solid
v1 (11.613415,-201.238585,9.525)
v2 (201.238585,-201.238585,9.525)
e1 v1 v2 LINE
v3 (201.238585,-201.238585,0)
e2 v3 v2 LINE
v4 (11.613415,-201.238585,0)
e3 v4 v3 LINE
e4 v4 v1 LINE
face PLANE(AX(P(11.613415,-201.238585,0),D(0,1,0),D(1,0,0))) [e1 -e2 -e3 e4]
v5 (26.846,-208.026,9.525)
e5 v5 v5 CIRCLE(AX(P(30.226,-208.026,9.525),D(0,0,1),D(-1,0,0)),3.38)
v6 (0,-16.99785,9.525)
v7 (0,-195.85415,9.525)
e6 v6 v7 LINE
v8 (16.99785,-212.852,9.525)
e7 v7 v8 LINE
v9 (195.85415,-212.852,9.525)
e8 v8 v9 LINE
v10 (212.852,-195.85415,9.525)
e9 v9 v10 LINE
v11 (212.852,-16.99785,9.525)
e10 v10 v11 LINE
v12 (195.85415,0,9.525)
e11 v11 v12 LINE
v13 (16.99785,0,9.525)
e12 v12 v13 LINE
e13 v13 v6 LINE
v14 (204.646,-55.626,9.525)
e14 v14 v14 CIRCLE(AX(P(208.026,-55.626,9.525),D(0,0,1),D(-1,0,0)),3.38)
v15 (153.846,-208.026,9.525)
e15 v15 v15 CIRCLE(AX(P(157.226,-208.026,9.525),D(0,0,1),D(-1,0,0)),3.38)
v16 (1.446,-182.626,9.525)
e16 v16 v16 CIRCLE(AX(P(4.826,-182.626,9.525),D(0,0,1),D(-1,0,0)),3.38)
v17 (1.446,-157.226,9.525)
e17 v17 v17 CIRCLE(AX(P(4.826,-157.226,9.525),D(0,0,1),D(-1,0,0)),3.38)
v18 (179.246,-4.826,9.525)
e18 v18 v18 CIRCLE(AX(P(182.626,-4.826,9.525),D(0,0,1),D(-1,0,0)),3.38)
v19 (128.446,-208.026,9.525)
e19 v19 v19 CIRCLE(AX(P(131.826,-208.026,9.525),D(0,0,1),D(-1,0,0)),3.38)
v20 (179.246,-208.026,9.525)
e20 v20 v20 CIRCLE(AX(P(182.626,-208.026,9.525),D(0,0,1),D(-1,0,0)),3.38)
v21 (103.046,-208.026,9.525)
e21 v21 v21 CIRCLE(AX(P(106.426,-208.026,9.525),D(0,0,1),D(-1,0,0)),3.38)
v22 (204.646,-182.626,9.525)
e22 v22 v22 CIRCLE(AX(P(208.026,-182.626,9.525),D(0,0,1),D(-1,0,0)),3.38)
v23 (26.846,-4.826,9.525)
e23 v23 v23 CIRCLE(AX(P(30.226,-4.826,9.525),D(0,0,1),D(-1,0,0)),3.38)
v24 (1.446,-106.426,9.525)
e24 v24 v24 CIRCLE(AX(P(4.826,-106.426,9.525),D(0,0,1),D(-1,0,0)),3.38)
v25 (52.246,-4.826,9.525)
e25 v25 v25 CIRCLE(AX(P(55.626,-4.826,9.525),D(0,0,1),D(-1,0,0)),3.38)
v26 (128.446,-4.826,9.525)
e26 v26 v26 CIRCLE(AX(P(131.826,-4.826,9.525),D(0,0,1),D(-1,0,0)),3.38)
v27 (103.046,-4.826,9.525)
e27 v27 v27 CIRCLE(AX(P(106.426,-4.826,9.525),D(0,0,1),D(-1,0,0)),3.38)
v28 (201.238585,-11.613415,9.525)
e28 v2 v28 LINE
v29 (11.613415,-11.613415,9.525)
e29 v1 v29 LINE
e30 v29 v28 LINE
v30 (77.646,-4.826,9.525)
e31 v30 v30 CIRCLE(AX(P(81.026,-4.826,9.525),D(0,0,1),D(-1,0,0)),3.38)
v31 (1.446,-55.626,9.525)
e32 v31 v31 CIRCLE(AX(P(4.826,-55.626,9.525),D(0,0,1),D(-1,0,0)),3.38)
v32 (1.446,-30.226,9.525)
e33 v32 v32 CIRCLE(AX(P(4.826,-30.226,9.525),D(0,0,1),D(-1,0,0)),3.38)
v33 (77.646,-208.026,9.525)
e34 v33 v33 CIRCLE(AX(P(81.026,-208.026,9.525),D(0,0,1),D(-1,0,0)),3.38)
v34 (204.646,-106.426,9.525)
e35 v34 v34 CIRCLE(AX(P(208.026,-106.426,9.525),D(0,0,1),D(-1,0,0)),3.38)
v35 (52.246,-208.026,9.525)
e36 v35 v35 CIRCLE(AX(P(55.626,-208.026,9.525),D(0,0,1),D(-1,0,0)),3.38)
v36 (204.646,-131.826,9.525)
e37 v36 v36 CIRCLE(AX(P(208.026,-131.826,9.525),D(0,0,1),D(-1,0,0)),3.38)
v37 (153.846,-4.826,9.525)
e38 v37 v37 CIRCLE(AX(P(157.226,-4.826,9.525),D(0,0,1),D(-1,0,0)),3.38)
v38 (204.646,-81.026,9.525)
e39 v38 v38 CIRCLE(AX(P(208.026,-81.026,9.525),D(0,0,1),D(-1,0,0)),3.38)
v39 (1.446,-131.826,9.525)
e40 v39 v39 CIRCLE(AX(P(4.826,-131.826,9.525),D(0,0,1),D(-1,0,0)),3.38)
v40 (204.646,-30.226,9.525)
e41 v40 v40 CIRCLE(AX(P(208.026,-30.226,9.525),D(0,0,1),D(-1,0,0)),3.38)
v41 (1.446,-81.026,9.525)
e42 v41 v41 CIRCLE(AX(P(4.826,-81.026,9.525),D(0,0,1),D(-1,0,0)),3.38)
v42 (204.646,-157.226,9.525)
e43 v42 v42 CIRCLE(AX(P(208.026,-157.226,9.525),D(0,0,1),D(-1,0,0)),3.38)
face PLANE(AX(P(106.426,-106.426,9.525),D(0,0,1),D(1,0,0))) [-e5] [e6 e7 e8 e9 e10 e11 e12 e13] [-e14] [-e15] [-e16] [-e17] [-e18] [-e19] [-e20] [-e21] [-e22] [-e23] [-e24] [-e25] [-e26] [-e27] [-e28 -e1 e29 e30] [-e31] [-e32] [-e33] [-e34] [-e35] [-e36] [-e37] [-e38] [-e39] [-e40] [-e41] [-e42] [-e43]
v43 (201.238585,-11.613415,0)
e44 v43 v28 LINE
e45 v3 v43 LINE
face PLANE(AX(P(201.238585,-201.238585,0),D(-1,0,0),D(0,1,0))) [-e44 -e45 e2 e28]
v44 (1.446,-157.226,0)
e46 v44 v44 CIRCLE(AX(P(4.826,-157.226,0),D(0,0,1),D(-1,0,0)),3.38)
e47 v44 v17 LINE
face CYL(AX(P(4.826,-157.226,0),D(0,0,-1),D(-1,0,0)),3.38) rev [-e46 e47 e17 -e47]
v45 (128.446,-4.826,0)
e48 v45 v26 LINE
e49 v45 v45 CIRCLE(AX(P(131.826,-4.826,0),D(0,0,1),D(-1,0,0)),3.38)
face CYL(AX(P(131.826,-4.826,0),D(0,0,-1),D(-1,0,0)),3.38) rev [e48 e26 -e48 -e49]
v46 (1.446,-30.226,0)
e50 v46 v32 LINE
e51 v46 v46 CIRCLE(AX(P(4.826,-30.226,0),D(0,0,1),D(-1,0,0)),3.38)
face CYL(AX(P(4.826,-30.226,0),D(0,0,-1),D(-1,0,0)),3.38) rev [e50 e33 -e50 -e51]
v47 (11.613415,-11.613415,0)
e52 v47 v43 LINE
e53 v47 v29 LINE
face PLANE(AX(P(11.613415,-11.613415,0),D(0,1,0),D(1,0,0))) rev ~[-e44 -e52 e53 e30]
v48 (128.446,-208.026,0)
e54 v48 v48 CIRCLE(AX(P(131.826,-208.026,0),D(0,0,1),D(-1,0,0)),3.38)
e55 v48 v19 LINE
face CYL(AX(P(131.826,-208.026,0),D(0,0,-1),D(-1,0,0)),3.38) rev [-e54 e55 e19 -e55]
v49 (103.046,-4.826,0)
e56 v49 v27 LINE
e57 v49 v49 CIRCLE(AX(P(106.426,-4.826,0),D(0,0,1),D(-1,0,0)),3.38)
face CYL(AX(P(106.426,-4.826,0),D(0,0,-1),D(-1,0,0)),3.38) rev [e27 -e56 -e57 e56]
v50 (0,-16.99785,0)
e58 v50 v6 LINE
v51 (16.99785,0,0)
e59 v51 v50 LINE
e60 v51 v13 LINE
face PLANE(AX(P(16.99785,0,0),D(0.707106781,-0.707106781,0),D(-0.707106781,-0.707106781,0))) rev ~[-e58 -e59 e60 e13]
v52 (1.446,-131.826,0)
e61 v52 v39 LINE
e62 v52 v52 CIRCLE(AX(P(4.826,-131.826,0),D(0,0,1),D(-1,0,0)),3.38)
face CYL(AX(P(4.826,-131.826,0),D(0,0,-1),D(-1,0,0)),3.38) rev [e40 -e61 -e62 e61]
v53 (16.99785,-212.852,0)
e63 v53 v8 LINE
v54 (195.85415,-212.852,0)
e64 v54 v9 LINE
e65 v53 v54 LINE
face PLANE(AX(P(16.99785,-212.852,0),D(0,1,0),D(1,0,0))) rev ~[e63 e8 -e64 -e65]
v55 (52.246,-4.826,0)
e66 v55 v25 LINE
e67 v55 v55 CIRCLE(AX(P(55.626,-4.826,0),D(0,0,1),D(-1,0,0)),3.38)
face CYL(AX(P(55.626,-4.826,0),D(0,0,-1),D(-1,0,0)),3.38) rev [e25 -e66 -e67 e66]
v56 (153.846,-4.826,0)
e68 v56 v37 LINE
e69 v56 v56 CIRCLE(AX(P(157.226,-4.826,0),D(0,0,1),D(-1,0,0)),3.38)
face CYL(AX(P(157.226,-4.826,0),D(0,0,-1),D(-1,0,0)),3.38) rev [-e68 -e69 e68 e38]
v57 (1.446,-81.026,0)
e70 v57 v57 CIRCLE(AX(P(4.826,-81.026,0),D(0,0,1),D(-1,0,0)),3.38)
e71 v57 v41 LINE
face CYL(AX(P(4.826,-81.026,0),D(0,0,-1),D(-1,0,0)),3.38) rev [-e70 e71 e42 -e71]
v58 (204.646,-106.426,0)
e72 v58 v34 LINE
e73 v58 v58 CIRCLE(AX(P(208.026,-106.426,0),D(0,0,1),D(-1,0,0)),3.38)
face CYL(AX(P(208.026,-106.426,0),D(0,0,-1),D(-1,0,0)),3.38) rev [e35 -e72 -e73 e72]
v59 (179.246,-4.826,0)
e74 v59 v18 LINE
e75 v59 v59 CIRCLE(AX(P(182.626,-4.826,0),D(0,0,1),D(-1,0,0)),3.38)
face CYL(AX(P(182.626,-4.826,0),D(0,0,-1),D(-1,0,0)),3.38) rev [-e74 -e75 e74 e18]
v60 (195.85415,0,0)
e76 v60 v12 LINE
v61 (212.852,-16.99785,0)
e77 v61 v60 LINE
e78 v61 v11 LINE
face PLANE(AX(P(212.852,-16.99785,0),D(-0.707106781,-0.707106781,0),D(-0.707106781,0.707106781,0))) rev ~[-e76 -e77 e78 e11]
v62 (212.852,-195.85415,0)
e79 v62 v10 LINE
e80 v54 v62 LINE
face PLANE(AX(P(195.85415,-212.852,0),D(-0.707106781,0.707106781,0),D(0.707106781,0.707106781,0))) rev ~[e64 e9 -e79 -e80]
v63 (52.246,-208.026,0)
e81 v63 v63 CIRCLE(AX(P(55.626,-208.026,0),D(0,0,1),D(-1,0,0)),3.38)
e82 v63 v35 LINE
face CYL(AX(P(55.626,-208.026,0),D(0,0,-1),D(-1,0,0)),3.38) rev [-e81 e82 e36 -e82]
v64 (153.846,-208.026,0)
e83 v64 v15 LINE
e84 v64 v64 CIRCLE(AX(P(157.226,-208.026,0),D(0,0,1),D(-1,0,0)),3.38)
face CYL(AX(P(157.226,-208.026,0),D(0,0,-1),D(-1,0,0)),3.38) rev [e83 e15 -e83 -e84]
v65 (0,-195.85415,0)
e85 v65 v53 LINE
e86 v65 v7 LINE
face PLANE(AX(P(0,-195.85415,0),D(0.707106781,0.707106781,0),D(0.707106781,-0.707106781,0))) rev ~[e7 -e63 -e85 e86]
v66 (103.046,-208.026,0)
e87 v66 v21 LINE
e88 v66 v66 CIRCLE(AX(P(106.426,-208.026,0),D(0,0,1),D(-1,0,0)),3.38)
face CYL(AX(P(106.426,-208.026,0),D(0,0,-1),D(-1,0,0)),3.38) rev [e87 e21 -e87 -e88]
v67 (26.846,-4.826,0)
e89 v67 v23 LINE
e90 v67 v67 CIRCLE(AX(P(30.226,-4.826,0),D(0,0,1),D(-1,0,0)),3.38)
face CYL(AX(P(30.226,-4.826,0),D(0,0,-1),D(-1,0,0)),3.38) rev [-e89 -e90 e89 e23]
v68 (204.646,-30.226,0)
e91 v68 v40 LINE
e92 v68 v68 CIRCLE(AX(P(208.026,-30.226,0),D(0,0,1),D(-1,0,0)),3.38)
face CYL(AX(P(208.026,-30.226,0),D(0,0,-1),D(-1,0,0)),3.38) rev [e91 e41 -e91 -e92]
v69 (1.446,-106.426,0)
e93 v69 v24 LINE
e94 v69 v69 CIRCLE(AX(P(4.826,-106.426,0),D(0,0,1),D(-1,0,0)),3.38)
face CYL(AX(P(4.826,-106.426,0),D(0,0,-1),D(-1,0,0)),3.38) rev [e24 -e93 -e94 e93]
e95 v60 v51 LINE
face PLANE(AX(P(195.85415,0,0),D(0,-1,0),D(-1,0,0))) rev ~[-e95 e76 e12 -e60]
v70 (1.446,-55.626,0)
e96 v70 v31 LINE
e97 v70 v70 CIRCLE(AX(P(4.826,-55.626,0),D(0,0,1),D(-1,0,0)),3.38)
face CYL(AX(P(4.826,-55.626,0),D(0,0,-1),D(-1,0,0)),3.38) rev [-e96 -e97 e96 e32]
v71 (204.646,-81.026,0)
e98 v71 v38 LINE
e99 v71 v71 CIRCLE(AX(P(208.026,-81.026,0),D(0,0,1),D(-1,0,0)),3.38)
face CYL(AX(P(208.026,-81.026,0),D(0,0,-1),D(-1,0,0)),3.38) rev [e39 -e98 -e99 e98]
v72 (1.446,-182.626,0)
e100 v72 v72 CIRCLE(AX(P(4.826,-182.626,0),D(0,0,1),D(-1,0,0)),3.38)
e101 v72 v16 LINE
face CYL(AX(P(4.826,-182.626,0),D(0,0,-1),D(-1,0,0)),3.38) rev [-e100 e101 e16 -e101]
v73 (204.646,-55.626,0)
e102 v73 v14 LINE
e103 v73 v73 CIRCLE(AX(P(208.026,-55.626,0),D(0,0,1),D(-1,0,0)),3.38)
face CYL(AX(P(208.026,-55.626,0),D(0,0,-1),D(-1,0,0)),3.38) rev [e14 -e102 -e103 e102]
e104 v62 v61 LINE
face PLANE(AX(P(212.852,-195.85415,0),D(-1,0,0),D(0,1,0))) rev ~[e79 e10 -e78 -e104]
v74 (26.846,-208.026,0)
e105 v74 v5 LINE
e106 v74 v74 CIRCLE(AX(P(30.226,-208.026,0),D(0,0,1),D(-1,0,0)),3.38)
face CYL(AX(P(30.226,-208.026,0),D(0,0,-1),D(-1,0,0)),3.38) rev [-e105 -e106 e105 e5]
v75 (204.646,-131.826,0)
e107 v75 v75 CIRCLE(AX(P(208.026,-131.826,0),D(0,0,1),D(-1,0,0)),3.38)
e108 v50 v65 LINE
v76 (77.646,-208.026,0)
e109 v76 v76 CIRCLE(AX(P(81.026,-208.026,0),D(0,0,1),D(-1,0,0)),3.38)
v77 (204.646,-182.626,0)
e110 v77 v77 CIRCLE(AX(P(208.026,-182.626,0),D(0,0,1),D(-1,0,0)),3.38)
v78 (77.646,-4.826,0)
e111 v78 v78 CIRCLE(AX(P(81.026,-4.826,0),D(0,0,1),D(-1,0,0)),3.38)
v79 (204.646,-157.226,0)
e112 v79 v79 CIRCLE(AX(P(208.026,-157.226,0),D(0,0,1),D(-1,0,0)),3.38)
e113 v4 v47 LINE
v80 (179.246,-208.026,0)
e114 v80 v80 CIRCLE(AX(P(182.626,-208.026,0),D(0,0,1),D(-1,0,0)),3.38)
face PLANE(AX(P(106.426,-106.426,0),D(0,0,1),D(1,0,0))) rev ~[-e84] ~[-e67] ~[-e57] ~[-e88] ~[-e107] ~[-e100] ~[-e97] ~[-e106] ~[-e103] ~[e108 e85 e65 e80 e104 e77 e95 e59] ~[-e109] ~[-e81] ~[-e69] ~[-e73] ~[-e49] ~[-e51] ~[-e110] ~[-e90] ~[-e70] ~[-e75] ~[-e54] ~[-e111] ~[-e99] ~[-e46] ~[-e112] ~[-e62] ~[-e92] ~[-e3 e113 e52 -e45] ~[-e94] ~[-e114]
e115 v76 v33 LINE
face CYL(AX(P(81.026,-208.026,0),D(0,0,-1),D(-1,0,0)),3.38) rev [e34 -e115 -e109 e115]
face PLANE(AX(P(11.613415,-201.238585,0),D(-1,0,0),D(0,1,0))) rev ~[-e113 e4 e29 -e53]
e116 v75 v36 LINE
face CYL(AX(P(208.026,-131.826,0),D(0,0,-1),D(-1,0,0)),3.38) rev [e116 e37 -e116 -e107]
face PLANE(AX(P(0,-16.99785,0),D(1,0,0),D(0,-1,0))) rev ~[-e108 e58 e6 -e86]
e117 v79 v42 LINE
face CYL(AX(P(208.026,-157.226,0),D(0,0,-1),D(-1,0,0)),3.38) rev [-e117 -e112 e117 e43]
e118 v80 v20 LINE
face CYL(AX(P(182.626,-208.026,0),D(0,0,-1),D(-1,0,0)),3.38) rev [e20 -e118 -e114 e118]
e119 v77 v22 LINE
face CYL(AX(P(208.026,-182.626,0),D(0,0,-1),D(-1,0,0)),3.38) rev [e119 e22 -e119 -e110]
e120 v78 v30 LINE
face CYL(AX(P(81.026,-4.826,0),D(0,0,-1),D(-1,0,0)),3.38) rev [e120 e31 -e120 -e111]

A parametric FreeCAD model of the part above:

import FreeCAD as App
import Part
import Sketcher
Q = App.Units.Quantity


def add_polygon(sketch, points):
    """Adds a closed chain of lines whose ends are joined by coincident constraints."""
    first, n = sketch.GeometryCount, len(points)
    for a, b in zip(points, points[1:] + points[:1]):
        sketch.addGeometry(Part.LineSegment(App.Vector(*a, 0), App.Vector(*b, 0)), False)
    for i in range(n):
        sketch.addConstraint(Sketcher.Constraint("Coincident", first + i, 2, first + (i + 1) % n, 1))

doc = App.newDocument("Part")
body = doc.addObject("PartDesign::Body", "Body")

sketch1 = body.newObject("Sketcher::SketchObject", "Sketch")
sketch1.AttachmentSupport = (doc.getObject("XY_Plane"), [""])
sketch1.MapMode = "FlatFace"
add_polygon(sketch1, [(17, 0), (0, -17), (0, -195.9), (17, -212.9), (195.9, -212.9), (212.9, -195.9), (212.9, -17), (195.9, 0)])
sketch1.addGeometry(Part.Circle(App.Vector(30.2, -208, 0), App.Vector(0, 0, 1), 3.4), False)
sketch1.addGeometry(Part.Circle(App.Vector(4.8, -182.6, 0), App.Vector(0, 0, 1), 3.4), False)
sketch1.addGeometry(Part.Circle(App.Vector(55.6, -208, 0), App.Vector(0, 0, 1), 3.4), False)
sketch1.addGeometry(Part.Circle(App.Vector(81, -208, 0), App.Vector(0, 0, 1), 3.4), False)
sketch1.addGeometry(Part.Circle(App.Vector(106.4, -208, 0), App.Vector(0, 0, 1), 3.4), False)
sketch1.addGeometry(Part.Circle(App.Vector(4.8, -157.2, 0), App.Vector(0, 0, 1), 3.4), False)
sketch1.addGeometry(Part.Circle(App.Vector(4.8, -131.8, 0), App.Vector(0, 0, 1), 3.4), False)
sketch1.addGeometry(Part.Circle(App.Vector(131.8, -208, 0), App.Vector(0, 0, 1), 3.4), False)
sketch1.addGeometry(Part.Circle(App.Vector(157.2, -208, 0), App.Vector(0, 0, 1), 3.4), False)
sketch1.addGeometry(Part.Circle(App.Vector(182.6, -208, 0), App.Vector(0, 0, 1), 3.4), False)
sketch1.addGeometry(Part.Circle(App.Vector(208, -182.6, 0), App.Vector(0, 0, 1), 3.4), False)
sketch1.addGeometry(Part.Circle(App.Vector(208, -157.2, 0), App.Vector(0, 0, 1), 3.4), False)
sketch1.addGeometry(Part.Circle(App.Vector(208, -131.8, 0), App.Vector(0, 0, 1), 3.4), False)
sketch1.addGeometry(Part.Circle(App.Vector(4.8, -106.4, 0), App.Vector(0, 0, 1), 3.4), False)
sketch1.addGeometry(Part.Circle(App.Vector(4.8, -81, 0), App.Vector(0, 0, 1), 3.4), False)
sketch1.addGeometry(Part.Circle(App.Vector(4.8, -55.6, 0), App.Vector(0, 0, 1), 3.4), False)
add_polygon(sketch1, [(201.2, -201.2), (11.6, -201.2), (11.6, -11.6), (201.2, -11.6)])
sketch1.addGeometry(Part.Circle(App.Vector(4.8, -30.2, 0), App.Vector(0, 0, 1), 3.4), False)
sketch1.addGeometry(Part.Circle(App.Vector(30.2, -4.8, 0), App.Vector(0, 0, 1), 3.4), False)
sketch1.addGeometry(Part.Circle(App.Vector(55.6, -4.8, 0), App.Vector(0, 0, 1), 3.4), False)
sketch1.addGeometry(Part.Circle(App.Vector(81, -4.8, 0), App.Vector(0, 0, 1), 3.4), False)
sketch1.addGeometry(Part.Circle(App.Vector(106.4, -4.8, 0), App.Vector(0, 0, 1), 3.4), False)
sketch1.addGeometry(Part.Circle(App.Vector(208, -106.4, 0), App.Vector(0, 0, 1), 3.4), False)
sketch1.addGeometry(Part.Circle(App.Vector(208, -81, 0), App.Vector(0, 0, 1), 3.4), False)
sketch1.addGeometry(Part.Circle(App.Vector(208, -55.6, 0), App.Vector(0, 0, 1), 3.4), False)
sketch1.addGeometry(Part.Circle(App.Vector(131.8, -4.8, 0), App.Vector(0, 0, 1), 3.4), False)
sketch1.addGeometry(Part.Circle(App.Vector(157.2, -4.8, 0), App.Vector(0, 0, 1), 3.4), False)
sketch1.addGeometry(Part.Circle(App.Vector(208, -30.2, 0), App.Vector(0, 0, 1), 3.4), False)
sketch1.addGeometry(Part.Circle(App.Vector(182.6, -4.8, 0), App.Vector(0, 0, 1), 3.4), False)
sketch1.addConstraint(Sketcher.Constraint("Vertical", 1))
sketch1.addConstraint(Sketcher.Constraint("Horizontal", 3))
sketch1.addConstraint(Sketcher.Constraint("Vertical", 5))
sketch1.addConstraint(Sketcher.Constraint("Horizontal", 7))
sketch1.addConstraint(Sketcher.Constraint("Horizontal", 24))
sketch1.addConstraint(Sketcher.Constraint("Vertical", 25))
sketch1.addConstraint(Sketcher.Constraint("Horizontal", 26))
sketch1.addConstraint(Sketcher.Constraint("Vertical", 27))
sketch1.addConstraint(Sketcher.Constraint("Equal", 8, 9))
sketch1.addConstraint(Sketcher.Constraint("Equal", 9, 10))
sketch1.addConstraint(Sketcher.Constraint("Equal", 10, 11))
sketch1.addConstraint(Sketcher.Constraint("Equal", 11, 12))
sketch1.addConstraint(Sketcher.Constraint("Equal", 12, 13))
sketch1.addConstraint(Sketcher.Constraint("Equal", 13, 14))
sketch1.addConstraint(Sketcher.Constraint("Equal", 14, 15))
sketch1.addConstraint(Sketcher.Constraint("Equal", 15, 16))
sketch1.addConstraint(Sketcher.Constraint("Equal", 16, 17))
sketch1.addConstraint(Sketcher.Constraint("Equal", 17, 18))
sketch1.addConstraint(Sketcher.Constraint("Equal", 18, 19))
sketch1.addConstraint(Sketcher.Constraint("Equal", 19, 20))
sketch1.addConstraint(Sketcher.Constraint("Equal", 20, 21))
sketch1.addConstraint(Sketcher.Constraint("Equal", 21, 22))
sketch1.addConstraint(Sketcher.Constraint("Equal", 22, 23))
sketch1.addConstraint(Sketcher.Constraint("Equal", 23, 28))
sketch1.addConstraint(Sketcher.Constraint("Equal", 28, 29))
sketch1.addConstraint(Sketcher.Constraint("Equal", 29, 30))
sketch1.addConstraint(Sketcher.Constraint("Equal", 30, 31))
sketch1.addConstraint(Sketcher.Constraint("Equal", 31, 32))
sketch1.addConstraint(Sketcher.Constraint("Equal", 32, 33))
sketch1.addConstraint(Sketcher.Constraint("Equal", 33, 34))
sketch1.addConstraint(Sketcher.Constraint("Equal", 34, 35))
sketch1.addConstraint(Sketcher.Constraint("Equal", 35, 36))
sketch1.addConstraint(Sketcher.Constraint("Equal", 36, 37))
sketch1.addConstraint(Sketcher.Constraint("Equal", 37, 38))
sketch1.addConstraint(Sketcher.Constraint("Equal", 38, 39))
sketch1.addConstraint(Sketcher.Constraint("PointOnObject", 0, 2, -2))
sketch1.addConstraint(Sketcher.Constraint("PointOnObject", 6, 2, -1))
sketch1.addConstraint(Sketcher.Constraint("Perpendicular", 0, 2))
sketch1.addConstraint(Sketcher.Constraint("Perpendicular", 2, 4))
sketch1.addConstraint(Sketcher.Constraint("Perpendicular", 4, 6))
sketch1.addConstraint(Sketcher.Constraint("Horizontal", 8, 3, 10, 3))
sketch1.addConstraint(Sketcher.Constraint("Horizontal", 10, 3, 11, 3))
sketch1.addConstraint(Sketcher.Constraint("Horizontal", 11, 3, 12, 3))
sketch1.addConstraint(Sketcher.Constraint("Horizontal", 12, 3, 15, 3))
sketch1.addConstraint(Sketcher.Constraint("Horizontal", 15, 3, 16, 3))
sketch1.addConstraint(Sketcher.Constraint("Horizontal", 16, 3, 17, 3))
sketch1.addConstraint(Sketcher.Constraint("Horizontal", 9, 3, 18, 3))
sketch1.addConstraint(Sketcher.Constraint("Horizontal", 13, 3, 19, 3))
sketch1.addConstraint(Sketcher.Constraint("Horizontal", 14, 3, 20, 3))
sketch1.addConstraint(Sketcher.Constraint("Horizontal", 29, 3, 30, 3))
sketch1.addConstraint(Sketcher.Constraint("Horizontal", 30, 3, 31, 3))
sketch1.addConstraint(Sketcher.Constraint("Horizontal", 31, 3, 32, 3))
sketch1.addConstraint(Sketcher.Constraint("Horizontal", 21, 3, 33, 3))
sketch1.addConstraint(Sketcher.Constraint("Horizontal", 22, 3, 34, 3))
sketch1.addConstraint(Sketcher.Constraint("Horizontal", 23, 3, 35, 3))
sketch1.addConstraint(Sketcher.Constraint("Horizontal", 32, 3, 36, 3))
sketch1.addConstraint(Sketcher.Constraint("Horizontal", 36, 3, 37, 3))
sketch1.addConstraint(Sketcher.Constraint("Horizontal", 28, 3, 38, 3))
sketch1.addConstraint(Sketcher.Constraint("Horizontal", 37, 3, 39, 3))
sketch1.addConstraint(Sketcher.Constraint("Horizontal", 1, 2, 4, 2))
sketch1.addConstraint(Sketcher.Constraint("Horizontal", 0, 2, 5, 2))
sketch1.addConstraint(Sketcher.Constraint("Vertical", 9, 3, 13, 3))
sketch1.addConstraint(Sketcher.Constraint("Vertical", 13, 3, 14, 3))
sketch1.addConstraint(Sketcher.Constraint("Vertical", 18, 3, 19, 3))
sketch1.addConstraint(Sketcher.Constraint("Vertical", 19, 3, 20, 3))
sketch1.addConstraint(Sketcher.Constraint("Vertical", 14, 3, 21, 3))
sketch1.addConstraint(Sketcher.Constraint("Vertical", 21, 3, 22, 3))
sketch1.addConstraint(Sketcher.Constraint("Vertical", 22, 3, 23, 3))
sketch1.addConstraint(Sketcher.Constraint("Vertical", 23, 3, 28, 3))
sketch1.addConstraint(Sketcher.Constraint("Vertical", 8, 3, 29, 3))
sketch1.addConstraint(Sketcher.Constraint("Vertical", 10, 3, 30, 3))
sketch1.addConstraint(Sketcher.Constraint("Vertical", 11, 3, 31, 3))
sketch1.addConstraint(Sketcher.Constraint("Vertical", 12, 3, 32, 3))
sketch1.addConstraint(Sketcher.Constraint("Vertical", 20, 3, 33, 3))
sketch1.addConstraint(Sketcher.Constraint("Vertical", 33, 3, 34, 3))
sketch1.addConstraint(Sketcher.Constraint("Vertical", 34, 3, 35, 3))
sketch1.addConstraint(Sketcher.Constraint("Vertical", 15, 3, 36, 3))
sketch1.addConstraint(Sketcher.Constraint("Vertical", 16, 3, 37, 3))
sketch1.addConstraint(Sketcher.Constraint("Vertical", 35, 3, 38, 3))
sketch1.addConstraint(Sketcher.Constraint("Vertical", 17, 3, 39, 3))
sketch1.addConstraint(Sketcher.Constraint("Vertical", 3, 2, 6, 2))
sketch1.addConstraint(Sketcher.Constraint("Vertical", 2, 2, 7, 2))
sketch1.addConstraint(Sketcher.Constraint("Equal", 7, 1))
sketch1.addConstraint(Sketcher.Constraint("Equal", 26, 25))
sketch1.addConstraint(Sketcher.Constraint("DistanceX", 9, 3, 8, 3, Q("1 in")))
sketch1.addConstraint(Sketcher.Constraint("DistanceY", 8, 3, 9, 3, Q("1 in")))
sketch1.addConstraint(Sketcher.Constraint("DistanceX", 8, 3, 10, 3, Q("1 in")))
sketch1.addConstraint(Sketcher.Constraint("DistanceX", 10, 3, 11, 3, Q("1 in")))
sketch1.addConstraint(Sketcher.Constraint("DistanceX", 11, 3, 12, 3, Q("1 in")))
sketch1.addConstraint(Sketcher.Constraint("DistanceY", 9, 3, 13, 3, Q("1 in")))
sketch1.addConstraint(Sketcher.Constraint("DistanceY", 13, 3, 14, 3, Q("1 in")))
sketch1.addConstraint(Sketcher.Constraint("DistanceX", 12, 3, 15, 3, Q("1 in")))
sketch1.addConstraint(Sketcher.Constraint("DistanceX", 15, 3, 16, 3, Q("1 in")))
sketch1.addConstraint(Sketcher.Constraint("DistanceX", 16, 3, 17, 3, Q("1 in")))
sketch1.addConstraint(Sketcher.Constraint("DistanceX", 17, 3, 18, 3, Q("1 in")))
sketch1.addConstraint(Sketcher.Constraint("DistanceY", 14, 3, 21, 3, Q("1 in")))
sketch1.addConstraint(Sketcher.Constraint("DistanceY", 21, 3, 22, 3, Q("1 in")))
sketch1.addConstraint(Sketcher.Constraint("DistanceY", 22, 3, 23, 3, Q("1 in")))
sketch1.addConstraint(Sketcher.Constraint("DistanceY", 23, 3, 28, 3, Q("1 in")))
sketch1.addConstraint(Sketcher.Constraint("DistanceY", 28, 3, 29, 3, Q("1 in")))
sketch1.addConstraint(Sketcher.Constraint("Diameter", 8, Q("6.76 mm")))
sketch1.addConstraint(Sketcher.Constraint("DistanceX", -1, 1, 8, 3, Q("1.19 in")))
sketch1.addConstraint(Sketcher.Constraint("DistanceY", 8, 3, -1, 1, Q("8.19 in")))
sketch1.addConstraint(Sketcher.Constraint("DistanceY", 2, 2, -1, 1, Q("8.38 in")))
sketch1.addConstraint(Sketcher.Constraint("DistanceX", 3, 1, 3, 2, Q("178.856301 mm")))
sketch1.addConstraint(Sketcher.Constraint("DistanceX", 24, 2, 24, 1, Q("189.625171 mm")))
sketch1.addConstraint(Sketcher.Constraint("DistanceX", -1, 1, 24, 2, Q("11.613415 mm")))
sketch1.addConstraint(Sketcher.Constraint("DistanceY", 24, 2, -1, 1, Q("201.238585 mm")))
pad1 = body.newObject("PartDesign::Pad", "Pad")
pad1.Profile = sketch1
pad1.Length = Q("0.375 in")

doc.recompute()
